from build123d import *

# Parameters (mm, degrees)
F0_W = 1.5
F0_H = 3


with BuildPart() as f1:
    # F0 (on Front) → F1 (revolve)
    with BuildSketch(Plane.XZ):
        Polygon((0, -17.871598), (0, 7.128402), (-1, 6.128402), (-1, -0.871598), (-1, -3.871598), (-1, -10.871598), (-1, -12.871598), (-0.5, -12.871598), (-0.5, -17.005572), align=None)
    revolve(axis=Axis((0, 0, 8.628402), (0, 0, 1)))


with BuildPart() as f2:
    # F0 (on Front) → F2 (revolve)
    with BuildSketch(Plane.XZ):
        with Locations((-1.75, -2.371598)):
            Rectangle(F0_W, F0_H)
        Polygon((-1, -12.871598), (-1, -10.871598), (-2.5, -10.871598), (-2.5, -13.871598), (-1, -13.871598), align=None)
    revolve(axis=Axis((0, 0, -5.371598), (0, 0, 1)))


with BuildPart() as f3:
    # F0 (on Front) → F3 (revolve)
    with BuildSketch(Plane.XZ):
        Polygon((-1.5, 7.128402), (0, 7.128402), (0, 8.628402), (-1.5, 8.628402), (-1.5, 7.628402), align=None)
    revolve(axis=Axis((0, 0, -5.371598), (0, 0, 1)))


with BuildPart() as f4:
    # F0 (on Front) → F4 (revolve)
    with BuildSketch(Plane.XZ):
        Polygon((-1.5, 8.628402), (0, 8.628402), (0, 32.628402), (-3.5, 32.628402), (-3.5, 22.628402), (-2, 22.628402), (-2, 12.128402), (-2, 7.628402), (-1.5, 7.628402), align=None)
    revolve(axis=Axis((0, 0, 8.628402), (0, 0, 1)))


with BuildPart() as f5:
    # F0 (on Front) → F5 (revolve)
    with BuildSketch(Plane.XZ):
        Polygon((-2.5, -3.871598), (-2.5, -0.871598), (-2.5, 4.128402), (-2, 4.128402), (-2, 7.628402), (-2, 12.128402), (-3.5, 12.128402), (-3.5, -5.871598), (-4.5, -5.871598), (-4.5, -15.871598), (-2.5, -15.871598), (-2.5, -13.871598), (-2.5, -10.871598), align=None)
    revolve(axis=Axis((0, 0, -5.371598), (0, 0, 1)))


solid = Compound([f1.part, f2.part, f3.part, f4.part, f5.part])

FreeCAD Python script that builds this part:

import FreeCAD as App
import Part
import Sketcher

V = App.Vector
Q = App.Units.Quantity


def add_polygon(sketch, points):
    """Adds a closed chain of lines whose ends are joined by coincident constraints."""
    first, n = sketch.GeometryCount, len(points)
    for a, b in zip(points, points[1:] + points[:1]):
        sketch.addGeometry(Part.LineSegment(App.Vector(*a, 0), App.Vector(*b, 0)), False)
    for i in range(n):
        sketch.addConstraint(Sketcher.Constraint("Coincident", first + i, 2, first + (i + 1) % n, 1))

doc = App.newDocument("Part")
body = doc.addObject("PartDesign::Body", "Body")

# Sketch on XZ plane
sketch1 = body.newObject("Sketcher::SketchObject", "Sketch")
sketch1.AttachmentSupport = (doc.getObject("XZ_Plane"), [""])
sketch1.MapMode = "FlatFace"
add_polygon(sketch1, [(0, -17.9), (0, 7.1), (-1, 6.1), (-1, -12.9), (-0.5, -12.9), (-0.5, -17)])  # lines 0-5
sketch1.addConstraint(Sketcher.Constraint("Vertical", 0))
sketch1.addConstraint(Sketcher.Constraint("Vertical", 2))
sketch1.addConstraint(Sketcher.Constraint("Horizontal", 3))
sketch1.addConstraint(Sketcher.Constraint("Vertical", 4))
sketch1.addConstraint(Sketcher.Constraint("PointOnObject", 0, 2, -2))
sketch1.addConstraint(Sketcher.Constraint("DistanceY", 0, 1, 0, 2, 25.0))
sketch1.addConstraint(Sketcher.Constraint("DistanceY", 2, 2, 2, 1, 19.0))
sketch1.addConstraint(Sketcher.Constraint("Angle", 1, Q("-135 deg")))
sketch1.addConstraint(Sketcher.Constraint("Angle", 5, Q("-60.000017 deg")))
sketch1.addConstraint(Sketcher.Constraint("Distance", 5, 1.000001))
sketch1.addConstraint(Sketcher.Constraint("DistanceX", 3, 1, 3, 2, 0.5))
sketch1.addConstraint(Sketcher.Constraint("DistanceY", -1, 1, 0, 2, 7.128402))
revolution = body.newObject("PartDesign::Revolution", "Revolution")
revolution.Profile = sketch1
revolution.ReferenceAxis = (sketch1, ["V_Axis"])
revolution.Angle = 360
body2 = doc.addObject("PartDesign::Body", "Body001")
body2.AllowCompound = True

# Sketch on XZ plane
sketch2 = body2.newObject("Sketcher::SketchObject", "Sketch001")
sketch2.AttachmentSupport = (doc.getObject("XZ_Plane001"), [""])
sketch2.MapMode = "FlatFace"
add_polygon(sketch2, [(-2.5, -0.9), (-2.5, -3.9), (-1, -3.9), (-1, -0.9)])  # lines 0-3
add_polygon(sketch2, [(-1, -10.9), (-2.5, -10.9), (-2.5, -13.9), (-1, -13.9)])  # lines 4-7
sketch2.addConstraint(Sketcher.Constraint("Vertical", 0))
sketch2.addConstraint(Sketcher.Constraint("Horizontal", 1))
sketch2.addConstraint(Sketcher.Constraint("Vertical", 2))
sketch2.addConstraint(Sketcher.Constraint("Horizontal", 3))
sketch2.addConstraint(Sketcher.Constraint("Horizontal", 4))
sketch2.addConstraint(Sketcher.Constraint("Vertical", 5))
sketch2.addConstraint(Sketcher.Constraint("Horizontal", 6))
sketch2.addConstraint(Sketcher.Constraint("Vertical", 7))
sketch2.addConstraint(Sketcher.Constraint("Vertical", 3, 2, 4, 2))
sketch2.addConstraint(Sketcher.Constraint("Vertical", 2, 2, 6, 2))
sketch2.addConstraint(Sketcher.Constraint("Equal", 2, 5))
sketch2.addConstraint(Sketcher.Constraint("DistanceY", 0, 2, 0, 1, 3.0))
sketch2.addConstraint(Sketcher.Constraint("DistanceX", 1, 1, 1, 2, 1.5))
sketch2.addConstraint(Sketcher.Constraint("DistanceX", 1, 2, -1, 1, 1.0))
sketch2.addConstraint(Sketcher.Constraint("DistanceY", 4, 2, 0, 2, 7.0))
sketch2.addConstraint(Sketcher.Constraint("DistanceY", 0, 2, -1, 1, 3.871598))
revolution2 = body2.newObject("PartDesign::Revolution", "Revolution001")
revolution2.Profile = sketch2
revolution2.ReferenceAxis = (sketch2, ["V_Axis"])
revolution2.Angle = 360
body3 = doc.addObject("PartDesign::Body", "Body002")

# Sketch on XZ plane
sketch3 = body3.newObject("Sketcher::SketchObject", "Sketch002")
sketch3.AttachmentSupport = (doc.getObject("XZ_Plane002"), [""])
sketch3.MapMode = "FlatFace"
add_polygon(sketch3, [(-1.5, 7.1), (0, 7.1), (0, 8.6), (-1.5, 8.6)])  # lines 0-3
sketch3.addConstraint(Sketcher.Constraint("Horizontal", 0))
sketch3.addConstraint(Sketcher.Constraint("Vertical", 1))
sketch3.addConstraint(Sketcher.Constraint("Horizontal", 2))
sketch3.addConstraint(Sketcher.Constraint("Vertical", 3))
sketch3.addConstraint(Sketcher.Constraint("PointOnObject", 0, 2, -2))
sketch3.addConstraint(Sketcher.Constraint("Equal", 2, 1))
sketch3.addConstraint(Sketcher.Constraint("DistanceX", 0, 1, 0, 2, 1.5))
sketch3.addConstraint(Sketcher.Constraint("DistanceY", -1, 1, 0, 2, 7.128402))
revolution3 = body3.newObject("PartDesign::Revolution", "Revolution002")
revolution3.Profile = sketch3
revolution3.ReferenceAxis = (sketch3, ["V_Axis"])
revolution3.Angle = 360
body4 = doc.addObject("PartDesign::Body", "Body003")

# Sketch on XZ plane
sketch4 = body4.newObject("Sketcher::SketchObject", "Sketch003")
sketch4.AttachmentSupport = (doc.getObject("XZ_Plane003"), [""])
sketch4.MapMode = "FlatFace"
add_polygon(sketch4, [(-1.5, 8.6), (0, 8.6), (0, 32.6), (-3.5, 32.6), (-3.5, 22.6), (-2, 22.6), (-2, 7.6), (-1.5, 7.6)])  # lines 0-7
sketch4.addConstraint(Sketcher.Constraint("Horizontal", 0))
sketch4.addConstraint(Sketcher.Constraint("Vertical", 1))
sketch4.addConstraint(Sketcher.Constraint("Horizontal", 2))
sketch4.addConstraint(Sketcher.Constraint("Vertical", 3))
sketch4.addConstraint(Sketcher.Constraint("Horizontal", 4))
sketch4.addConstraint(Sketcher.Constraint("Vertical", 5))
sketch4.addConstraint(Sketcher.Constraint("Horizontal", 6))
sketch4.addConstraint(Sketcher.Constraint("Vertical", 7))
sketch4.addConstraint(Sketcher.Constraint("PointOnObject", 0, 2, -2))
sketch4.addConstraint(Sketcher.Constraint("Equal", 0, 4))
sketch4.addConstraint(Sketcher.Constraint("DistanceY", 1, 1, 1, 2, 24.0))
sketch4.addConstraint(Sketcher.Constraint("DistanceY", 3, 2, 3, 1, 10.0))
sketch4.addConstraint(Sketcher.Constraint("DistanceY", 5, 2, 5, 1, 15.0))
sketch4.addConstraint(Sketcher.Constraint("DistanceX", 0, 1, 0, 2, 1.5))
sketch4.addConstraint(Sketcher.Constraint("DistanceX", 2, 2, 2, 1, 3.5))
sketch4.addConstraint(Sketcher.Constraint("DistanceY", -1, 1, 0, 2, 8.628402))
revolution4 = body4.newObject("PartDesign::Revolution", "Revolution003")
revolution4.Profile = sketch4
revolution4.ReferenceAxis = (sketch4, ["V_Axis"])
revolution4.Angle = 360
body5 = doc.addObject("PartDesign::Body", "Body004")

# Sketch on XZ plane
sketch5 = body5.newObject("Sketcher::SketchObject", "Sketch004")
sketch5.AttachmentSupport = (doc.getObject("XZ_Plane004"), [""])
sketch5.MapMode = "FlatFace"
add_polygon(sketch5, [(-2.5, 4.1), (-2, 4.1), (-2, 12.1), (-3.5, 12.1), (-3.5, -5.9), (-4.5, -5.9), (-4.5, -15.9), (-2.5, -15.9)])  # lines 0-7
sketch5.addConstraint(Sketcher.Constraint("Horizontal", 0))
sketch5.addConstraint(Sketcher.Constraint("Vertical", 1))
sketch5.addConstraint(Sketcher.Constraint("Horizontal", 2))
sketch5.addConstraint(Sketcher.Constraint("Vertical", 3))
sketch5.addConstraint(Sketcher.Constraint("Horizontal", 4))
sketch5.addConstraint(Sketcher.Constraint("Vertical", 5))
sketch5.addConstraint(Sketcher.Constraint("Horizontal", 6))
sketch5.addConstraint(Sketcher.Constraint("Vertical", 7))
sketch5.addConstraint(Sketcher.Constraint("DistanceX", 4, 2, 4, 1, 1.0))
sketch5.addConstraint(Sketcher.Constraint("DistanceX", 6, 1, 6, 2, 2.0))
sketch5.addConstraint(Sketcher.Constraint("DistanceY", 1, 1, 1, 2, 8.0))
sketch5.addConstraint(Sketcher.Constraint("DistanceY", 3, 2, 3, 1, 18.0))
sketch5.addConstraint(Sketcher.Constraint("DistanceY", 5, 2, 5, 1, 10.0))
sketch5.addConstraint(Sketcher.Constraint("DistanceX", 0, 1, 0, 2, 0.5))
sketch5.addConstraint(Sketcher.Constraint("DistanceX", 0, 2, -1, 1, 2.0))
sketch5.addConstraint(Sketcher.Constraint("DistanceY", -1, 1, 0, 2, 4.128402))
revolution5 = body5.newObject("PartDesign::Revolution", "Revolution004")
revolution5.Profile = sketch5
revolution5.ReferenceAxis = (sketch5, ["V_Axis"])
revolution5.Angle = 360

doc.recompute()
